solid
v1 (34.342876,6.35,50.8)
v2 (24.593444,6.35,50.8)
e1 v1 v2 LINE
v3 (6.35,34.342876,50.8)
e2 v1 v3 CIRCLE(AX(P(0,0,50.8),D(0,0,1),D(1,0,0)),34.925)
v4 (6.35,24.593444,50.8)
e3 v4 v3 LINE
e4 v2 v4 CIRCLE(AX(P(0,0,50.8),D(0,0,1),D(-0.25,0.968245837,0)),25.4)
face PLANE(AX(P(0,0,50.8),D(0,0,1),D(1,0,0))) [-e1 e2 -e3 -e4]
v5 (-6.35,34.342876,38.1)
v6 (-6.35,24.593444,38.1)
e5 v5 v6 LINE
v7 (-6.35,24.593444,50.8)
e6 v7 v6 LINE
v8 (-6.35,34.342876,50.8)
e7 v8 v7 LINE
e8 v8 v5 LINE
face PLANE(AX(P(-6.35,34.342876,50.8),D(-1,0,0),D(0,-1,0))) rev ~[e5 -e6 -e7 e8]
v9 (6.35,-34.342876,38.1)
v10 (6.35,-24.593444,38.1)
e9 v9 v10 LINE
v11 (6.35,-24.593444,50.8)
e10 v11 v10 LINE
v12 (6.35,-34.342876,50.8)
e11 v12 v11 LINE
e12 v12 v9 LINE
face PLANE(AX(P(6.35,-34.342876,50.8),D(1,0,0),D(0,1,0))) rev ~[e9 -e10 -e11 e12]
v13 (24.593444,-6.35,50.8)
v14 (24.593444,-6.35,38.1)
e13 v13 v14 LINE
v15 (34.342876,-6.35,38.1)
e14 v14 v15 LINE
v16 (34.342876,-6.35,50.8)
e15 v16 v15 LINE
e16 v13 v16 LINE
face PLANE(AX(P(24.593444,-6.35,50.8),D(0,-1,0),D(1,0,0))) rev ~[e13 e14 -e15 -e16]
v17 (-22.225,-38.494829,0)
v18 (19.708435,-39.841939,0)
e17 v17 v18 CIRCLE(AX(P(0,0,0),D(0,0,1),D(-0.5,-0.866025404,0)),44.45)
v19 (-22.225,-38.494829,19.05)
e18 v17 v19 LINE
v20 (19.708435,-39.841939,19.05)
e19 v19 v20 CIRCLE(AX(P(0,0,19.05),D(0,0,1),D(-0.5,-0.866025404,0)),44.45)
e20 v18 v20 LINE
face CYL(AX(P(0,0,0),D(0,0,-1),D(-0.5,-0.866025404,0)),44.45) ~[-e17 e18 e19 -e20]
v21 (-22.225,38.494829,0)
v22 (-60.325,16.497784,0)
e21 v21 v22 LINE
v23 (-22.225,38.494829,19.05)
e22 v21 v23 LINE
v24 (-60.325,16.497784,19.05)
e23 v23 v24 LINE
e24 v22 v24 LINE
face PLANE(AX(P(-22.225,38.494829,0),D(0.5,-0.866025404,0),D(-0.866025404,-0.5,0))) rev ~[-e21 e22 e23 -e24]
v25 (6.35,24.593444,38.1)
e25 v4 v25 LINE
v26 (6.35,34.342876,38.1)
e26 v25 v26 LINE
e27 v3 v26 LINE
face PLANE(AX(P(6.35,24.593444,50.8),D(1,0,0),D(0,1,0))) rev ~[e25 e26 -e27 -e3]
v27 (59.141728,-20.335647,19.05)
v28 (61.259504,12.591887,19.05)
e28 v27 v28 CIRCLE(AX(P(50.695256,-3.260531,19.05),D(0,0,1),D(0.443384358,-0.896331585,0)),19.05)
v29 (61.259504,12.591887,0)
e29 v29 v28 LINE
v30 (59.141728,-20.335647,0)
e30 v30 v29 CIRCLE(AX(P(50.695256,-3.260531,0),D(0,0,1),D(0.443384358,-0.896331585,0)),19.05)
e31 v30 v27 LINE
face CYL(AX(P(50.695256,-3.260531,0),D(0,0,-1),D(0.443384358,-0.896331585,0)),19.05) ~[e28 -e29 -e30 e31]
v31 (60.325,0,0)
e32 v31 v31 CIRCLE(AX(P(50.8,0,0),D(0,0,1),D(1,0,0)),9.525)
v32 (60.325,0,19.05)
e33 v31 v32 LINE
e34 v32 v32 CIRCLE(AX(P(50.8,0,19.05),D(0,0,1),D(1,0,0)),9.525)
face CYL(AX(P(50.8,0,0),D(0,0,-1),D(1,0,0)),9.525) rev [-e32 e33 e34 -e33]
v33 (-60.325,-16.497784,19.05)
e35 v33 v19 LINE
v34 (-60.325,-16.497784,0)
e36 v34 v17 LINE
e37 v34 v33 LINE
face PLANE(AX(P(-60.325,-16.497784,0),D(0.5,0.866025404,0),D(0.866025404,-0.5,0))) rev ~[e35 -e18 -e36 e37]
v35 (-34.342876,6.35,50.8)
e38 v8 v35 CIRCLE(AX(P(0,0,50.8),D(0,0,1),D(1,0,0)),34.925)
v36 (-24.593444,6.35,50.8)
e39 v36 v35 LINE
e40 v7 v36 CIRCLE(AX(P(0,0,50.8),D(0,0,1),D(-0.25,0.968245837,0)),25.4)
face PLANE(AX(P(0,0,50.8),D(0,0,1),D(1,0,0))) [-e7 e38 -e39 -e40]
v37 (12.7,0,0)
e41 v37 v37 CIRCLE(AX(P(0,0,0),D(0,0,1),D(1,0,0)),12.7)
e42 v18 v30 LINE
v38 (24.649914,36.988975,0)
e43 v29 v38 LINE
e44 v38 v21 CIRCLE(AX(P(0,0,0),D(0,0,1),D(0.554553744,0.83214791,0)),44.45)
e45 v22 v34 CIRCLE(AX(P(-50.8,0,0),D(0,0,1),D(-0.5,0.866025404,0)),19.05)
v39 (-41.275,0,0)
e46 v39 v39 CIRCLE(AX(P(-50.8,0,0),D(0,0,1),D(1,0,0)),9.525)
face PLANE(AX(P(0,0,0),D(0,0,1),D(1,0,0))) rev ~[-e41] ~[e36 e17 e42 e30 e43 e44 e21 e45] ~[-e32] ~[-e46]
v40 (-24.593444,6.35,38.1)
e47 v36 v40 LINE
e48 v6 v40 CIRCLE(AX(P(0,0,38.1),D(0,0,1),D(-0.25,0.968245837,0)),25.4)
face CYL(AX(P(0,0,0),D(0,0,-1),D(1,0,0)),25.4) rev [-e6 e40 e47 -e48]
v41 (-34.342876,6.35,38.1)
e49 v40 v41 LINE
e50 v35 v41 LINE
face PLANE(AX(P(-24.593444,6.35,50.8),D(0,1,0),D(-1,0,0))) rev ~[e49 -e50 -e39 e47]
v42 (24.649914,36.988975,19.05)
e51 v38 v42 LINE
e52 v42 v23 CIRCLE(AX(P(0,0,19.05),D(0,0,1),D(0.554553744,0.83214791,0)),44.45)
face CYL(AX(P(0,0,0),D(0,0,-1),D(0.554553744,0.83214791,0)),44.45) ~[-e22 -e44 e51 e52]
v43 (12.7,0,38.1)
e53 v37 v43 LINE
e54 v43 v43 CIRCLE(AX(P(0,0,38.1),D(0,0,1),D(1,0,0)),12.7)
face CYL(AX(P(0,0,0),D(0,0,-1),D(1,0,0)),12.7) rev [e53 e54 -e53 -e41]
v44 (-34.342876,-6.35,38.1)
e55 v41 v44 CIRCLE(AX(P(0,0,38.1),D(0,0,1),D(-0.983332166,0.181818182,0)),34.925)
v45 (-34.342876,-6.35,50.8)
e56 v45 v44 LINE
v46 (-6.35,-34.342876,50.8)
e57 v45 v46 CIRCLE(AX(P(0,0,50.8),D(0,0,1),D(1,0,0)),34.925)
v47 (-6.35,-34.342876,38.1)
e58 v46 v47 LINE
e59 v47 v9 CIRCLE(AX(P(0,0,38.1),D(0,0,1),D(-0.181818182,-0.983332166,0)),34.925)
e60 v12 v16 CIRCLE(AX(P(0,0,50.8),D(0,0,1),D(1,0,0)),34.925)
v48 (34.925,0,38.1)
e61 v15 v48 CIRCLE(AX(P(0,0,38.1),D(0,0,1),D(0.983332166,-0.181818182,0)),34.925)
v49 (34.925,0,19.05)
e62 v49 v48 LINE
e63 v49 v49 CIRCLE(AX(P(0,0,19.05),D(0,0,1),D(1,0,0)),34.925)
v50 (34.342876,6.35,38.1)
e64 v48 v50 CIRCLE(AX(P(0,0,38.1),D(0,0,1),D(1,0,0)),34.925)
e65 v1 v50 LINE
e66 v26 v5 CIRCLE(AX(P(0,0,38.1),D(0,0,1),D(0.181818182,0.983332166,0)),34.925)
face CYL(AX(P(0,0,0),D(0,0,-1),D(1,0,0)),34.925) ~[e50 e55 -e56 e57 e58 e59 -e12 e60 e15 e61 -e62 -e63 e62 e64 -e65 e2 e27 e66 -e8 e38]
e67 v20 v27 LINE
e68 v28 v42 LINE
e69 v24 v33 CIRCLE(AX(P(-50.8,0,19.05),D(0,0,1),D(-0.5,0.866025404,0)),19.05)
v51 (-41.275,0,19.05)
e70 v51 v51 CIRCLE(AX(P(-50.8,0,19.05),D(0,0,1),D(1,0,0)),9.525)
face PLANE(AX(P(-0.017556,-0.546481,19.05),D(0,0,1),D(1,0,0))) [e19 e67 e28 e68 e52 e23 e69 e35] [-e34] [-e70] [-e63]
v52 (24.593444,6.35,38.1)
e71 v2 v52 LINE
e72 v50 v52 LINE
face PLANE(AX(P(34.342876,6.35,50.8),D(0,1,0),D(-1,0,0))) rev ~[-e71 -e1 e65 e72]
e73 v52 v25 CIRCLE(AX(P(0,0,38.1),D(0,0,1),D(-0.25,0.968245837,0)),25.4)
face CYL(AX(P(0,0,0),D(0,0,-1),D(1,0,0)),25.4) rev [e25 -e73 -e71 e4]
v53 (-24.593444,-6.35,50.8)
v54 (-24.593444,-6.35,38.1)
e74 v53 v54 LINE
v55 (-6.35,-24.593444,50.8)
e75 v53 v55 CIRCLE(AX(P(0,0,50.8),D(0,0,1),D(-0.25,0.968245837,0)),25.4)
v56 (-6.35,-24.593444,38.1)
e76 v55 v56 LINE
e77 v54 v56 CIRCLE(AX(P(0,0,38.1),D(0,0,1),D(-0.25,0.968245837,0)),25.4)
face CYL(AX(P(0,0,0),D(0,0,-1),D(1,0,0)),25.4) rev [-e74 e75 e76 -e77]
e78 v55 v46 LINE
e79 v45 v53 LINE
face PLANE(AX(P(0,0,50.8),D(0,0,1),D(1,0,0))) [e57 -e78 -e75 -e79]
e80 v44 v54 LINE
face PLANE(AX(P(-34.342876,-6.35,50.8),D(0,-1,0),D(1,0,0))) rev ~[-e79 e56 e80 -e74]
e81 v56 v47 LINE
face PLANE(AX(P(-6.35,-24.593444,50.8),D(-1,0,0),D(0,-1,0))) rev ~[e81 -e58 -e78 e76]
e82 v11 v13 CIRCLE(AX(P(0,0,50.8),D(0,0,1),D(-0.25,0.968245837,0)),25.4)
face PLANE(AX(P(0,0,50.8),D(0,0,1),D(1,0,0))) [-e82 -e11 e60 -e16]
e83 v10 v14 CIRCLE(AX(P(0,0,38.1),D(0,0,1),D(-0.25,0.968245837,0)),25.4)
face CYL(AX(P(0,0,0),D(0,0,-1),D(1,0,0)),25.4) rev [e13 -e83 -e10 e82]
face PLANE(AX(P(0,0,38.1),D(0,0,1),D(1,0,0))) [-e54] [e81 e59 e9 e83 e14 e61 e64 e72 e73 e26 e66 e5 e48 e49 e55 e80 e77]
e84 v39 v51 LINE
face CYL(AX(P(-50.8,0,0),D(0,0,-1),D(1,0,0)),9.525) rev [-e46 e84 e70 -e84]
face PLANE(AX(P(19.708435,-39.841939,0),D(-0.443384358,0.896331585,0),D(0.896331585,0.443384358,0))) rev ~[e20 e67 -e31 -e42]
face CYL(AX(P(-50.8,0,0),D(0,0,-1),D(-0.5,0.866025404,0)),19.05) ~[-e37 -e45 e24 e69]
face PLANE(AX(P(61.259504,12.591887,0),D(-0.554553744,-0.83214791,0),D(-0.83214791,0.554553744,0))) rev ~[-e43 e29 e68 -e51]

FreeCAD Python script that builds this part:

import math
import FreeCAD as App
import Part
import Sketcher

V = App.Vector
Q = App.Units.Quantity

doc = App.newDocument("Part")
body = doc.addObject("PartDesign::Body", "Body")

# Sketch on XY plane
sketch1 = body.newObject("Sketcher::SketchObject", "Sketch")
sketch1.AttachmentSupport = (doc.getObject("XY_Plane"), [""])
sketch1.MapMode = "FlatFace"
sketch1.addGeometry(Part.LineSegment(V(-60, -16, 0), V(-22, -38, 0)), False)
sketch1.addGeometry(Part.ArcOfCircle(Part.Circle(V(0, 0, 0), V(0, 0, 1), 44), math.radians(-120), math.radians(-64)), False)
sketch1.addGeometry(Part.LineSegment(V(20, -40, 0), V(59, -20, 0)), False)
sketch1.addGeometry(Part.ArcOfCircle(Part.Circle(V(51, -3, 0), V(0, 0, 1), 19), math.radians(-64), math.radians(56)), False)
sketch1.addGeometry(Part.LineSegment(V(61, 13, 0), V(25, 37, 0)), False)
sketch1.addGeometry(Part.ArcOfCircle(Part.Circle(V(0, 0, 0), V(0, 0, 1), 44), math.radians(56), math.radians(120)), False)
sketch1.addGeometry(Part.LineSegment(V(-22, 38, 0), V(-60, 16, 0)), False)
sketch1.addGeometry(Part.ArcOfCircle(Part.Circle(V(-51, 0, 0), V(0, 0, 1), 19), math.radians(120), math.radians(240)), False)
sketch1.addGeometry(Part.Circle(V(-51, 0, 0), V(0, 0, 1), 10), False)
sketch1.addGeometry(Part.Circle(V(0, 0, 0), V(0, 0, 1), 35), False)
sketch1.addGeometry(Part.Circle(V(51, 0, 0), V(0, 0, 1), 10), False)
sketch1.addConstraint(Sketcher.Constraint("Tangent", 0, 2, 1, 1))
sketch1.addConstraint(Sketcher.Constraint("Tangent", 1, 2, 2, 1))
sketch1.addConstraint(Sketcher.Constraint("Tangent", 2, 2, 3, 1))
sketch1.addConstraint(Sketcher.Constraint("Tangent", 3, 2, 4, 1))
sketch1.addConstraint(Sketcher.Constraint("Tangent", 4, 2, 5, 1))
sketch1.addConstraint(Sketcher.Constraint("Tangent", 5, 2, 6, 1))
sketch1.addConstraint(Sketcher.Constraint("Tangent", 6, 2, 7, 1))
sketch1.addConstraint(Sketcher.Constraint("Tangent", 7, 2, 0, 1))
sketch1.addConstraint(Sketcher.Constraint("Coincident", 1, 3, -1, 1))
sketch1.addConstraint(Sketcher.Constraint("Coincident", 5, 3, -1, 1))
sketch1.addConstraint(Sketcher.Constraint("Coincident", 9, 3, -1, 1))
sketch1.addConstraint(Sketcher.Constraint("Coincident", 8, 3, 7, 3))
sketch1.addConstraint(Sketcher.Constraint("Equal", 1, 5))
sketch1.addConstraint(Sketcher.Constraint("Equal", 3, 7))
sketch1.addConstraint(Sketcher.Constraint("Equal", 8, 10))
sketch1.addConstraint(Sketcher.Constraint("Symmetric", 7, 3, 10, 3, -1, 1))
sketch1.addConstraint(Sketcher.Constraint("PointOnObject", 7, 3, -1))
sketch1.addConstraint(Sketcher.Constraint("Equal", 0, 2))
sketch1.addConstraint(Sketcher.Constraint("Diameter", 8, Q("0.75 in")))
sketch1.addConstraint(Sketcher.Constraint("Diameter", 9, Q("2.75 in")))
sketch1.addConstraint(Sketcher.Constraint("Radius", 1, Q("1.75 in")))
sketch1.addConstraint(Sketcher.Constraint("Radius", 3, Q("0.75 in")))
sketch1.addConstraint(Sketcher.Constraint("DistanceX", 7, 3, -1, 1, Q("2 in")))
sketch1.addConstraint(Sketcher.Constraint("Angle", 2, Q("26.320017 deg")))
pad1 = body.newObject("PartDesign::Pad", "Pad")
pad1.Profile = sketch1
pad1.Length = Q("0.75 in")

# Sketch on XY plane
sketch2 = body.newObject("Sketcher::SketchObject", "Sketch001")
sketch2.AttachmentSupport = (doc.getObject("XY_Plane"), [""])
sketch2.MapMode = "FlatFace"
sketch2.addGeometry(Part.Circle(V(0, 0, 0), V(0, 0, 1), 35), False)
sketch2.addGeometry(Part.Circle(V(0, 0, 0), V(0, 0, 1), 25), False)
sketch2.addConstraint(Sketcher.Constraint("Coincident", 0, 3, -1, 1))
sketch2.addConstraint(Sketcher.Constraint("Coincident", 1, 3, -1, 1))
sketch2.addConstraint(Sketcher.Constraint("Diameter", 1, Q("2 in")))
sketch2.addConstraint(Sketcher.Constraint("Diameter", 0, Q("2.75 in")))
pad2 = body.newObject("PartDesign::Pad", "Pad001")
pad2.Profile = sketch2
pad2.Length = Q("2 in")

# Sketch on XY plane
sketch3 = body.newObject("Sketcher::SketchObject", "Sketch002")
sketch3.AttachmentSupport = (doc.getObject("XY_Plane"), [""])
sketch3.MapMode = "FlatFace"
sketch3.addGeometry(Part.Circle(V(0, 0, 0), V(0, 0, 1), 25), False)
sketch3.addGeometry(Part.Circle(V(0, 0, 0), V(0, 0, 1), 13), False)
sketch3.addConstraint(Sketcher.Constraint("Coincident", 0, 3, -1, 1))
sketch3.addConstraint(Sketcher.Constraint("Coincident", 1, 3, -1, 1))
sketch3.addConstraint(Sketcher.Constraint("Diameter", 0, Q("2 in")))
sketch3.addConstraint(Sketcher.Constraint("Diameter", 1, Q("1 in")))
pad3 = body.newObject("PartDesign::Pad", "Pad002")
pad3.Profile = sketch3
pad3.Length = Q("1.5 in")

# Sketch on XY plane
sketch4 = body.newObject("Sketcher::SketchObject", "Sketch003")
sketch4.AttachmentSupport = (doc.getObject("XY_Plane"), [""])
sketch4.MapMode = "FlatFace"
sketch4.AttachmentOffset = App.Placement(V(0, 0, 2 * 25.4), App.Rotation())
sketch4.addGeometry(Part.ArcOfCircle(Part.Circle(V(0, 0, 0), V(0, 0, 1), 35), math.radians(80), math.radians(100)), False)
sketch4.addGeometry(Part.LineSegment(V(-6, 34, 0), V(-6, 25, 0)), False)
sketch4.addGeometry(Part.ArcOfCircle(Part.Circle(V(0, 0, 0), V(0, 0, 1), 25), math.radians(76), math.radians(104)), False)
sketch4.addGeometry(Part.LineSegment(V(6, 25, 0), V(6, 34, 0)), False)
sketch4.addConstraint(Sketcher.Constraint("Coincident", 0, 2, 1, 1))
sketch4.addConstraint(Sketcher.Constraint("Coincident", 1, 2, 2, 2))
sketch4.addConstraint(Sketcher.Constraint("Coincident", 2, 1, 3, 1))
sketch4.addConstraint(Sketcher.Constraint("Coincident", 3, 2, 0, 1))
sketch4.addConstraint(Sketcher.Constraint("Vertical", 1))
sketch4.addConstraint(Sketcher.Constraint("Vertical", 3))
sketch4.addConstraint(Sketcher.Constraint("Coincident", 0, 3, -1, 1))
sketch4.addConstraint(Sketcher.Constraint("Coincident", 2, 3, -1, 1))
sketch4.addConstraint(Sketcher.Constraint("Horizontal", 1, 2, 2, 1))
sketch4.addConstraint(Sketcher.Constraint("Radius", 2, Q("1 in")))
sketch4.addConstraint(Sketcher.Constraint("Radius", 0, Q("1.375 in")))
sketch4.addConstraint(Sketcher.Constraint("DistanceX", 1, 2, 2, 1, Q("0.5 in")))
pocket1 = body.newObject("PartDesign::Pocket", "Pocket")
pocket1.Profile = sketch4
pocket1.Length = Q("0.5 in")

# Sketch on XY plane
sketch5 = body.newObject("Sketcher::SketchObject", "Sketch004")
sketch5.AttachmentSupport = (doc.getObject("XY_Plane"), [""])
sketch5.MapMode = "FlatFace"
sketch5.AttachmentOffset = App.Placement(V(0, 0, 2 * 25.4), App.Rotation())
sketch5.addGeometry(Part.LineSegment(V(-25, 6, 0), V(-34, 6, 0)), False)
sketch5.addGeometry(Part.ArcOfCircle(Part.Circle(V(0, 0, 0), V(0, 0, 1), 35), math.radians(170), math.radians(190)), False)
sketch5.addGeometry(Part.LineSegment(V(-34, -6, 0), V(-25, -6, 0)), False)
sketch5.addGeometry(Part.ArcOfCircle(Part.Circle(V(0, 0, 0), V(0, 0, 1), 25), math.radians(166), math.radians(194)), False)
sketch5.addGeometry(Part.LineSegment(V(-6, -25, 0), V(-6, -34, 0)), False)
sketch5.addGeometry(Part.ArcOfCircle(Part.Circle(V(0, 0, 0), V(0, 0, 1), 35), math.radians(-100), math.radians(-80)), False)
sketch5.addGeometry(Part.LineSegment(V(6, -34, 0), V(6, -25, 0)), False)
sketch5.addGeometry(Part.ArcOfCircle(Part.Circle(V(0, 0, 0), V(0, 0, 1), 25), math.radians(-104), math.radians(-76)), False)
sketch5.addGeometry(Part.LineSegment(V(25, -6, 0), V(34, -6, 0)), False)
sketch5.addGeometry(Part.ArcOfCircle(Part.Circle(V(0, 0, 0), V(0, 0, 1), 35), math.radians(-10.48), math.radians(0)), False)
sketch5.addGeometry(Part.ArcOfCircle(Part.Circle(V(0, 0, 0), V(0, 0, 1), 35), math.radians(0), math.radians(10.48)), False)
sketch5.addGeometry(Part.LineSegment(V(34, 6, 0), V(25, 6, 0)), False)
sketch5.addGeometry(Part.ArcOfCircle(Part.Circle(V(0, 0, 0), V(0, 0, 1), 25), math.radians(-14), math.radians(14)), False)
sketch5.addConstraint(Sketcher.Constraint("Coincident", 0, 2, 1, 1))
sketch5.addConstraint(Sketcher.Constraint("Coincident", 1, 2, 2, 1))
sketch5.addConstraint(Sketcher.Constraint("Coincident", 2, 2, 3, 2))
sketch5.addConstraint(Sketcher.Constraint("Coincident", 3, 1, 0, 1))
sketch5.addConstraint(Sketcher.Constraint("Coincident", 4, 2, 5, 1))
sketch5.addConstraint(Sketcher.Constraint("Coincident", 5, 2, 6, 1))
sketch5.addConstraint(Sketcher.Constraint("Coincident", 6, 2, 7, 2))
sketch5.addConstraint(Sketcher.Constraint("Coincident", 7, 1, 4, 1))
sketch5.addConstraint(Sketcher.Constraint("Coincident", 8, 2, 9, 1))
sketch5.addConstraint(Sketcher.Constraint("Tangent", 9, 2, 10, 1))
sketch5.addConstraint(Sketcher.Constraint("Coincident", 10, 2, 11, 1))
sketch5.addConstraint(Sketcher.Constraint("Coincident", 11, 2, 12, 2))
sketch5.addConstraint(Sketcher.Constraint("Coincident", 12, 1, 8, 1))
sketch5.addConstraint(Sketcher.Constraint("Horizontal", 0))
sketch5.addConstraint(Sketcher.Constraint("Horizontal", 2))
sketch5.addConstraint(Sketcher.Constraint("Vertical", 4))
sketch5.addConstraint(Sketcher.Constraint("Vertical", 6))
sketch5.addConstraint(Sketcher.Constraint("Horizontal", 8))
sketch5.addConstraint(Sketcher.Constraint("Horizontal", 11))
sketch5.addConstraint(Sketcher.Constraint("Coincident", 1, 3, -1, 1))
sketch5.addConstraint(Sketcher.Constraint("Coincident", 3, 3, -1, 1))
sketch5.addConstraint(Sketcher.Constraint("Coincident", 5, 3, -1, 1))
sketch5.addConstraint(Sketcher.Constraint("Coincident", 7, 3, -1, 1))
sketch5.addConstraint(Sketcher.Constraint("Coincident", 9, 3, -1, 1))
sketch5.addConstraint(Sketcher.Constraint("Coincident", 12, 3, -1, 1))
sketch5.addConstraint(Sketcher.Constraint("Equal", 1, 5))
sketch5.addConstraint(Sketcher.Constraint("Equal", 3, 7))
sketch5.addConstraint(Sketcher.Constraint("Equal", 5, 9))
sketch5.addConstraint(Sketcher.Constraint("Equal", 9, 10))
sketch5.addConstraint(Sketcher.Constraint("Equal", 7, 12))
sketch5.addConstraint(Sketcher.Constraint("PointOnObject", 9, 2, -1))
sketch5.addConstraint(Sketcher.Constraint("Horizontal", 4, 2, 5, 2))
sketch5.addConstraint(Sketcher.Constraint("Horizontal", 2, 2, 8, 2))
sketch5.addConstraint(Sketcher.Constraint("Horizontal", 3, 1, 10, 2))
sketch5.addConstraint(Sketcher.Constraint("Vertical", 0, 2, 1, 2))
sketch5.addConstraint(Sketcher.Constraint("Equal", 11, 4))
sketch5.addConstraint(Sketcher.Constraint("Radius", 3, Q("1 in")))
sketch5.addConstraint(Sketcher.Constraint("Radius", 1, Q("1.375 in")))
sketch5.addConstraint(Sketcher.Constraint("DistanceY", 1, 2, 0, 2, Q("0.5 in")))
pocket2 = body.newObject("PartDesign::Pocket", "Pocket001")
pocket2.Profile = sketch5
pocket2.Length = Q("0.5 in")

doc.recompute()
